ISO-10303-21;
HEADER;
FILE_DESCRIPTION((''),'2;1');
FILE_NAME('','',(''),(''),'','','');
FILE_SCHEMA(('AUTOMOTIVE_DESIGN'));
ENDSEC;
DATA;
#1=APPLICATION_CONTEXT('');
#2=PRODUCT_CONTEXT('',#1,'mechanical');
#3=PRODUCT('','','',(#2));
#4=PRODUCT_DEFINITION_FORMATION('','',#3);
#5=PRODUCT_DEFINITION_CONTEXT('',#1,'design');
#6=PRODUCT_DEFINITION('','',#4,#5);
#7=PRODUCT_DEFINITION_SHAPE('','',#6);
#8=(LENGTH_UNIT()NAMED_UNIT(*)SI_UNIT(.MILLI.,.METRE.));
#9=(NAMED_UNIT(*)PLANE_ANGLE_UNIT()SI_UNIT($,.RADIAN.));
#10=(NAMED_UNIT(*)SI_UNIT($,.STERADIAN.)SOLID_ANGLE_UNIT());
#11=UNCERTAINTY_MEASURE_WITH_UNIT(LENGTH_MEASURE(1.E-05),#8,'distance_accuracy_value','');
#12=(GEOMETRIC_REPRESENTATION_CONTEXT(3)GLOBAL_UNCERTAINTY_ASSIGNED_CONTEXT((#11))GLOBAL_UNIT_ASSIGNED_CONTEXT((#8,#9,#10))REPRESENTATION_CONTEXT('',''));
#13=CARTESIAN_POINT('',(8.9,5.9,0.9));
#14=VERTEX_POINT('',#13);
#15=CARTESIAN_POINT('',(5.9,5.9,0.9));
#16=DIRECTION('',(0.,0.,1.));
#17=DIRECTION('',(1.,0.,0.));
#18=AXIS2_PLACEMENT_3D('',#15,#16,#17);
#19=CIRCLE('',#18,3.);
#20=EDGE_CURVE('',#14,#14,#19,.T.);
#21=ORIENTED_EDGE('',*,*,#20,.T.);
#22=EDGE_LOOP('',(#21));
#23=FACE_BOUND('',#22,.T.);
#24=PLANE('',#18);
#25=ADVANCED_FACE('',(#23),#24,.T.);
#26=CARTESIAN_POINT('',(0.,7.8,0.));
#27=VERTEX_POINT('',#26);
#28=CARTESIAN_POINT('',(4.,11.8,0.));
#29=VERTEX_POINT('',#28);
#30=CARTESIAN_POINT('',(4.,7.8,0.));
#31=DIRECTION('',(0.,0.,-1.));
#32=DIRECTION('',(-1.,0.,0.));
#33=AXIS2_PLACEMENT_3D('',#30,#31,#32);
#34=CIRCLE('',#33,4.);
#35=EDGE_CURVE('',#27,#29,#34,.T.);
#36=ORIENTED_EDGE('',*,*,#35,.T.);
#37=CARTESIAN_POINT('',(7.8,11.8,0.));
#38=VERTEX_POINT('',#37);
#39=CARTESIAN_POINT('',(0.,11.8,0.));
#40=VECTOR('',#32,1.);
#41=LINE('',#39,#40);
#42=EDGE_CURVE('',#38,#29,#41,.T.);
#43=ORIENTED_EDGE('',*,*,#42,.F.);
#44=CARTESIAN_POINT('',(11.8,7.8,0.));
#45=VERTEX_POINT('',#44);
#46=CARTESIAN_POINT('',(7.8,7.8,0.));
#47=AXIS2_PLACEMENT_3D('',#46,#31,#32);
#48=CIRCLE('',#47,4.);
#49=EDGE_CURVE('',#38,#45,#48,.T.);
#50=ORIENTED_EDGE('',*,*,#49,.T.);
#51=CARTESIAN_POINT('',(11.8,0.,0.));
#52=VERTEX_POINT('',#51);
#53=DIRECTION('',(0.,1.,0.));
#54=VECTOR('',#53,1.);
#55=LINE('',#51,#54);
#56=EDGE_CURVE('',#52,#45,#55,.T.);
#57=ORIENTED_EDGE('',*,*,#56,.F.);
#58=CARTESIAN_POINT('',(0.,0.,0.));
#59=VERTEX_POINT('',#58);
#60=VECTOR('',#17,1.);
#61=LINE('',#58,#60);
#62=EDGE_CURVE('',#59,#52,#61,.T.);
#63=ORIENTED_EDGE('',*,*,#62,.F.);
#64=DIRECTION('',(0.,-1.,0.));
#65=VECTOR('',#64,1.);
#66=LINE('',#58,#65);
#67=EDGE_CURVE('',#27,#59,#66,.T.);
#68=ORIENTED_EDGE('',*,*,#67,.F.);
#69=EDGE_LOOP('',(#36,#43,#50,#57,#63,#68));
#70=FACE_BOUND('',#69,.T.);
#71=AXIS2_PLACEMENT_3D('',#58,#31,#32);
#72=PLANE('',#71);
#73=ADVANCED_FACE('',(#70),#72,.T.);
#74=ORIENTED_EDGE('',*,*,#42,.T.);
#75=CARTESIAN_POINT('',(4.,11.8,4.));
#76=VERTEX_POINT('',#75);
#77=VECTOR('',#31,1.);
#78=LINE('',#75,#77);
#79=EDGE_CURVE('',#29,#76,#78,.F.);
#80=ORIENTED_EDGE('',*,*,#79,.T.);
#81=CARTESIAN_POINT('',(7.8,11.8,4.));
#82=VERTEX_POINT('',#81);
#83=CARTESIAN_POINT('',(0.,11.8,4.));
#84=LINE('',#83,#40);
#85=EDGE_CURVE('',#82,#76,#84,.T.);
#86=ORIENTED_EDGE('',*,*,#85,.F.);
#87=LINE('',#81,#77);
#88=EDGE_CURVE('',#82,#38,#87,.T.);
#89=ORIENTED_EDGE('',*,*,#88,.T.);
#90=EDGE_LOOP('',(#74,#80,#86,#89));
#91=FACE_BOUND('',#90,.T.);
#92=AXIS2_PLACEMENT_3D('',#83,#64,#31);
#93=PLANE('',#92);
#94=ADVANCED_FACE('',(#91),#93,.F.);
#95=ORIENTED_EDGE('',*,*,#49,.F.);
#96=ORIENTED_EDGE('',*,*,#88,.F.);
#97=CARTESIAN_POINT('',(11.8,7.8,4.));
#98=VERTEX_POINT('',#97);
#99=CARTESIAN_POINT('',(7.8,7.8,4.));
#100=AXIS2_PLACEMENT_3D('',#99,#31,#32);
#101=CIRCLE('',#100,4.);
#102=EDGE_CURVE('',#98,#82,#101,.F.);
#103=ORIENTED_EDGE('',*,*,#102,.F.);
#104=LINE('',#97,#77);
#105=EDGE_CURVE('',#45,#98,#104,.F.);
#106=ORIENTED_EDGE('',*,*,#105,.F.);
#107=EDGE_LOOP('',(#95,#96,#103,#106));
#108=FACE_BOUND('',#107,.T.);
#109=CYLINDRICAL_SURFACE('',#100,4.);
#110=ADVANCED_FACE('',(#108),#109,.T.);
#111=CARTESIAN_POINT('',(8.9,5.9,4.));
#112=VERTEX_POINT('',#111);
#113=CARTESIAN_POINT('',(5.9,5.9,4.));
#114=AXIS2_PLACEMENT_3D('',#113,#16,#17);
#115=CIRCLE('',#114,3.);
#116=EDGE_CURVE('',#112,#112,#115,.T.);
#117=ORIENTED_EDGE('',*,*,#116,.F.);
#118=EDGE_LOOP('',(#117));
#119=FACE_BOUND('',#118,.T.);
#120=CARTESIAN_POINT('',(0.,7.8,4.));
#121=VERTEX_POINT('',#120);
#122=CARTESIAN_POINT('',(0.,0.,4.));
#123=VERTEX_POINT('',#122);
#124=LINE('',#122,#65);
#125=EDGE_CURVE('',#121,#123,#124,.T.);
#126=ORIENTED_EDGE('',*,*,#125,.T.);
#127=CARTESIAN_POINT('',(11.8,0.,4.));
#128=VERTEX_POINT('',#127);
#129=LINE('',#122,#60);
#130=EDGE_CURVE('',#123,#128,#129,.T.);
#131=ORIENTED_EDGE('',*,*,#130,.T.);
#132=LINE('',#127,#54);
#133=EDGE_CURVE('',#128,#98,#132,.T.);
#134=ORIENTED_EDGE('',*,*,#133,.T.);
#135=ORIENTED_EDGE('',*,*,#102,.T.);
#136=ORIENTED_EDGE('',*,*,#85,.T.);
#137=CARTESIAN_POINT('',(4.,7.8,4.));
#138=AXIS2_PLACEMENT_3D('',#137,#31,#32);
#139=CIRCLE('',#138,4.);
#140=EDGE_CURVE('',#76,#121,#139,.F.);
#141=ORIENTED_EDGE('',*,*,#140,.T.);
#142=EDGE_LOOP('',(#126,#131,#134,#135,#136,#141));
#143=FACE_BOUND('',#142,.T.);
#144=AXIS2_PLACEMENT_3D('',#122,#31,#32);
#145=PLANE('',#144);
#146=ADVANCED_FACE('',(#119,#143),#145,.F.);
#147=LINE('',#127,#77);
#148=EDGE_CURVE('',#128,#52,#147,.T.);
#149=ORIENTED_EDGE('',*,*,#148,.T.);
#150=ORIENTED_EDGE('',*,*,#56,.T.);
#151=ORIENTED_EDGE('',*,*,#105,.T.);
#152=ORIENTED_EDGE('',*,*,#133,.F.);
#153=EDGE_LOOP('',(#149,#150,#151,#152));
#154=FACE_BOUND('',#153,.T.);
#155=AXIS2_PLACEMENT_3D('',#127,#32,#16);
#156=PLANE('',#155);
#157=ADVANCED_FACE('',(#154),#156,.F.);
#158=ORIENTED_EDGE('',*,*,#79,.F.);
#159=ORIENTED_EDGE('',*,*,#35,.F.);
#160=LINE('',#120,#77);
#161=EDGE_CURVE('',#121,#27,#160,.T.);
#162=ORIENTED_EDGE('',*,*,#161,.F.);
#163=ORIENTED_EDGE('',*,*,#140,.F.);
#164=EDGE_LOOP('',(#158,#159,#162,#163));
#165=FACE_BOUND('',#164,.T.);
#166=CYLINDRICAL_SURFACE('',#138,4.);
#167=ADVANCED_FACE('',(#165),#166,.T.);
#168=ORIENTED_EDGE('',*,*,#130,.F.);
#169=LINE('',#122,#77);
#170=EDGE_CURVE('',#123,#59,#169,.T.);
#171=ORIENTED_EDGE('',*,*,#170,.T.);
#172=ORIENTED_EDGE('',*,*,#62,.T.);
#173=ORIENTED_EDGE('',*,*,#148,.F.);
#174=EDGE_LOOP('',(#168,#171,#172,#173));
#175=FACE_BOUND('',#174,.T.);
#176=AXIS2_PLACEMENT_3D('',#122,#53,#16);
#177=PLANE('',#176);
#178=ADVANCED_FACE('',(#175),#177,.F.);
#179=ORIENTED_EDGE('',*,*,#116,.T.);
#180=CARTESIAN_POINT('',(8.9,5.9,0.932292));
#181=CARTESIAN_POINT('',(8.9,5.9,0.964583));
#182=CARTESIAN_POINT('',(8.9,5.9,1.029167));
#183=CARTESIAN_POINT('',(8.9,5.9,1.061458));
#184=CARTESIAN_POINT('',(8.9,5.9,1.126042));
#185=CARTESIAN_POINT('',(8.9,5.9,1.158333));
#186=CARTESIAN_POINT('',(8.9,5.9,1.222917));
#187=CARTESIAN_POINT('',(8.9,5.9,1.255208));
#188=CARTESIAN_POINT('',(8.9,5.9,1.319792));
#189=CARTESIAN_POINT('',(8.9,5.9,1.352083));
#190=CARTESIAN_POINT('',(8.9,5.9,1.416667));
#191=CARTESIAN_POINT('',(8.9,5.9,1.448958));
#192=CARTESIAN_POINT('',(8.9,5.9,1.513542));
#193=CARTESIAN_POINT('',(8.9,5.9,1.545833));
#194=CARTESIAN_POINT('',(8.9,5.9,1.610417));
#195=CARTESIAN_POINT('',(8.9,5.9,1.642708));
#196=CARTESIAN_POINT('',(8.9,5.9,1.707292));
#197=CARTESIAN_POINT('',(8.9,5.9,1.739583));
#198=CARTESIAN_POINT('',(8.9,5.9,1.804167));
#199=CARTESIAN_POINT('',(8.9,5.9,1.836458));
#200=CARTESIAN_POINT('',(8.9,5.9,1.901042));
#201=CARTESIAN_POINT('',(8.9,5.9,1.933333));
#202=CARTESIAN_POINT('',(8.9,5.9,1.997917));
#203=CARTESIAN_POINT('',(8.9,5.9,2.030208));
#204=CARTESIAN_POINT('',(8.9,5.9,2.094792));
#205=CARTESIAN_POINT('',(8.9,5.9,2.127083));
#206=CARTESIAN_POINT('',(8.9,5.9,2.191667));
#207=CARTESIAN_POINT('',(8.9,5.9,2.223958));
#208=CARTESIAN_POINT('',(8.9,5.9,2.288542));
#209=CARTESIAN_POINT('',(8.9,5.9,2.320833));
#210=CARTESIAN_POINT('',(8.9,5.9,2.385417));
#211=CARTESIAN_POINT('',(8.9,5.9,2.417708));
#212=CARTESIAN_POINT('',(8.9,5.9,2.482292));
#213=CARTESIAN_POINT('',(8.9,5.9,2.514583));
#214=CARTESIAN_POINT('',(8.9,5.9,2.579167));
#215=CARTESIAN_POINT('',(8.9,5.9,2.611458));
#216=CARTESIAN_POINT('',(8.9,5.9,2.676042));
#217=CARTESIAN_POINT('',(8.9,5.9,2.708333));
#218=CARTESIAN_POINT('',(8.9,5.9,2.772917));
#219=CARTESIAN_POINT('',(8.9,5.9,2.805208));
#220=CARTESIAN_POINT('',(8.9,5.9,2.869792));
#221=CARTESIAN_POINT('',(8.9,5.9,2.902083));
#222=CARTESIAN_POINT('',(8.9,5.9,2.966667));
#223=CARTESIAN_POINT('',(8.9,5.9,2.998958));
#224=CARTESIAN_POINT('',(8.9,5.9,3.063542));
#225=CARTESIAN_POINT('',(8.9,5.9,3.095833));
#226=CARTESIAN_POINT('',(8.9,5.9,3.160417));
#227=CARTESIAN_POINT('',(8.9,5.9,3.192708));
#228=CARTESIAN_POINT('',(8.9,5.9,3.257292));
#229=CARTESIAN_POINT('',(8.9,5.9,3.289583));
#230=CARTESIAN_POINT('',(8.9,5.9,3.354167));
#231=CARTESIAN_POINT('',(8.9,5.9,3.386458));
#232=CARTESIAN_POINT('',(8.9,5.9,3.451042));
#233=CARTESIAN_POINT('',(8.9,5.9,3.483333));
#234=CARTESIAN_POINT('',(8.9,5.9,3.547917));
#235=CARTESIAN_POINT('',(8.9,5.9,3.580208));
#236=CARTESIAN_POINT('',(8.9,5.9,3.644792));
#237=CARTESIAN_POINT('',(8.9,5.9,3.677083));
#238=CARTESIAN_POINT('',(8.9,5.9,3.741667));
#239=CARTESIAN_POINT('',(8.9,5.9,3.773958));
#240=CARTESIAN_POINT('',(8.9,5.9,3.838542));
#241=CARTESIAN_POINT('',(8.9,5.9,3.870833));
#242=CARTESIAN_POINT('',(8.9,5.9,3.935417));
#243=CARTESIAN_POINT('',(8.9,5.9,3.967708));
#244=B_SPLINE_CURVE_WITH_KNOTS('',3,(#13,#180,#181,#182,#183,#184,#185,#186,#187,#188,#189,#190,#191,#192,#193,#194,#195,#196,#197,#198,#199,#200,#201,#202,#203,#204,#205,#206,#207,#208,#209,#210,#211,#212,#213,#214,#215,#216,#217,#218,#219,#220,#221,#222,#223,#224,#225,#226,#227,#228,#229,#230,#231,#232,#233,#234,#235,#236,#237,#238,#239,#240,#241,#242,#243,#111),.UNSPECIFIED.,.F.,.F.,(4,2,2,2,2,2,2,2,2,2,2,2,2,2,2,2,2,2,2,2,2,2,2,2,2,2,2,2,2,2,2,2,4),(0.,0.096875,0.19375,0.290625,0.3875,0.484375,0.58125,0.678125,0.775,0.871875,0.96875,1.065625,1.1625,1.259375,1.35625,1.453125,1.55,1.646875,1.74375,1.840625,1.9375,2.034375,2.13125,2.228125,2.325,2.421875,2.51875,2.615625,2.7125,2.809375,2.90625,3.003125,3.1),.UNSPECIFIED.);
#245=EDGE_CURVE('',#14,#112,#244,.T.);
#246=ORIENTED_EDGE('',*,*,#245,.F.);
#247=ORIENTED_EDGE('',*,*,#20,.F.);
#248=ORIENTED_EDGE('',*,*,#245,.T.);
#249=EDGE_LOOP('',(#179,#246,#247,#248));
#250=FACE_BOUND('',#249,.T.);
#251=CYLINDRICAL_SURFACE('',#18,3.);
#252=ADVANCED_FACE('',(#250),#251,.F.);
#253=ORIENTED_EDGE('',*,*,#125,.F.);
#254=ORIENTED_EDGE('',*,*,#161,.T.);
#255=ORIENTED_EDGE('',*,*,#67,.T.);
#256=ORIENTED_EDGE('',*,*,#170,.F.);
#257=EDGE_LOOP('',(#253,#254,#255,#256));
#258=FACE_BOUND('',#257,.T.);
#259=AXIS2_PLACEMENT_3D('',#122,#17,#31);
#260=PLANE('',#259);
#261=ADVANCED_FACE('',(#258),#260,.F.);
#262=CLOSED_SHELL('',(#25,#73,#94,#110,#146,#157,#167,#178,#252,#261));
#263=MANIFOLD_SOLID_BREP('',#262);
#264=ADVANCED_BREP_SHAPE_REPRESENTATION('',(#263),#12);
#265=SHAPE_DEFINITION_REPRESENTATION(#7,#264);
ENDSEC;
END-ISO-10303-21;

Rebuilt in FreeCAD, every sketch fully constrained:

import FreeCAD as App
import Part
import Sketcher


def edges_at(feature, points):
    """Names of the edges that pass closest to the given points."""
    edges = feature.Shape.Edges
    near = lambda p: min(range(len(edges)), key=lambda i: edges[i].distToShape(Part.Vertex(*p))[0])
    return sorted({f"Edge{near(p) + 1}" for p in points})

doc = App.newDocument("Part")
params = doc.addObject("Spreadsheet::Sheet", "Params")
for row, (alias, value) in enumerate([
    ("sketch1_width", "11.8 mm"),
    ("pad1_length", "4 mm"),
    ("sketch2_diameter", "6 mm"),
    ("pocket1_length", "3.1 mm"),
    ("fillet_radius", "4 mm"),
], start=1):
    params.set(f"A{row}", alias)
    params.set(f"B{row}", "=" + value)
    params.setAlias(f"B{row}", alias)

body = doc.addObject("PartDesign::Body", "Body")

# Sketch on XY plane
sketch1 = body.newObject("Sketcher::SketchObject", "Sketch")
sketch1.AttachmentSupport = (doc.getObject("XY_Plane"), [""])
sketch1.MapMode = "FlatFace"
sketch1.addGeometry(Part.LineSegment(App.Vector(0, 12, 0), App.Vector(0, 0, 0)), False)
sketch1.addGeometry(Part.LineSegment(App.Vector(0, 0, 0), App.Vector(12, 0, 0)), False)
sketch1.addGeometry(Part.LineSegment(App.Vector(12, 0, 0), App.Vector(12, 12, 0)), False)
sketch1.addGeometry(Part.LineSegment(App.Vector(12, 12, 0), App.Vector(0, 12, 0)), False)
sketch1.addConstraint(Sketcher.Constraint("Coincident", 0, 2, 1, 1))
sketch1.addConstraint(Sketcher.Constraint("Coincident", 1, 2, 2, 1))
sketch1.addConstraint(Sketcher.Constraint("Coincident", 2, 2, 3, 1))
sketch1.addConstraint(Sketcher.Constraint("Coincident", 3, 2, 0, 1))
sketch1.addConstraint(Sketcher.Constraint("Vertical", 0))
sketch1.addConstraint(Sketcher.Constraint("Horizontal", 1))
sketch1.addConstraint(Sketcher.Constraint("Vertical", 2))
sketch1.addConstraint(Sketcher.Constraint("Horizontal", 3))
sketch1.addConstraint(Sketcher.Constraint("Coincident", 0, 2, -1, 1))
sketch1.addConstraint(Sketcher.Constraint("Equal", 3, 0))
sketch1.addConstraint(Sketcher.Constraint("DistanceX", 1, 1, 1, 2, 11.8))
sketch1.setExpression("Constraints[10]", "Params.sketch1_width")
pad1 = body.newObject("PartDesign::Pad", "Pad")
pad1.Profile = sketch1
pad1.setExpression("Length", "Params.pad1_length")

# Sketch on XY plane
sketch2 = body.newObject("Sketcher::SketchObject", "Sketch001")
sketch2.AttachmentSupport = (doc.getObject("XY_Plane"), [""])
sketch2.MapMode = "FlatFace"
sketch2.AttachmentOffset = App.Placement(App.Vector(0, 0, 4), App.Rotation())
sketch2.addGeometry(Part.Circle(App.Vector(5.9, 5.9, 0), App.Vector(0, 0, 1), 3), False)
sketch2.addConstraint(Sketcher.Constraint("Diameter", 0, 6.0))
sketch2.addConstraint(Sketcher.Constraint("DistanceX", -1, 1, 0, 3, 5.9))
sketch2.addConstraint(Sketcher.Constraint("DistanceY", -1, 1, 0, 3, 5.9))
sketch2.setExpression("Constraints[0]", "Params.sketch2_diameter")
pocket1 = body.newObject("PartDesign::Pocket", "Pocket")
pocket1.Profile = sketch2
pocket1.setExpression("Length", "Params.pocket1_length")
doc.recompute()

fillet = body.newObject("PartDesign::Fillet", "Fillet")
fillet.Base = (pocket1, edges_at(pocket1, [(0, 11.8, 2), (11.8, 11.8, 2)]))
fillet.setExpression("Radius", "Params.fillet_radius")

doc.recompute()
